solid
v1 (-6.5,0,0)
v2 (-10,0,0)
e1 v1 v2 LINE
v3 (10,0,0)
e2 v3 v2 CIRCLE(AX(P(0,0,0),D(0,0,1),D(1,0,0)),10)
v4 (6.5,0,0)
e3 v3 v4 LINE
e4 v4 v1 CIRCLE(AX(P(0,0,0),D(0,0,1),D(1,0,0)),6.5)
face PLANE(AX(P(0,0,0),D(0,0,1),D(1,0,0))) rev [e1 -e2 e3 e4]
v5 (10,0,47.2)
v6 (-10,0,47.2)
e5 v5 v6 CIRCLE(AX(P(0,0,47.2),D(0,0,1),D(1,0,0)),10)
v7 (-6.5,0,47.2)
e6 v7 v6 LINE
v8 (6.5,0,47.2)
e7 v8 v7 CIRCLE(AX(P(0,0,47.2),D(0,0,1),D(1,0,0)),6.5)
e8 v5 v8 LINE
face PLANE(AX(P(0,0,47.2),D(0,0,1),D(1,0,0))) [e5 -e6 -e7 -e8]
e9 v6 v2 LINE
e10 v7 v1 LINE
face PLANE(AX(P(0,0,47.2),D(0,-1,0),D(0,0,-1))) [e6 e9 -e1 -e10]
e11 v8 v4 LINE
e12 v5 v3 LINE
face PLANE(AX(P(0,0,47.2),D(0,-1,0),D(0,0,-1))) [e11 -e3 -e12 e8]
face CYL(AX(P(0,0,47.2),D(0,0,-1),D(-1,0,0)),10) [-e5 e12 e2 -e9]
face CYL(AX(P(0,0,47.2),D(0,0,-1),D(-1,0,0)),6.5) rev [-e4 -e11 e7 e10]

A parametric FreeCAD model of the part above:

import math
import FreeCAD as App
import Part
import Sketcher
from FreeCAD import Vector
Q = App.Units.Quantity

doc = App.newDocument("Part")
body = doc.addObject("PartDesign::Body", "Body")

sketch1 = body.newObject("Sketcher::SketchObject", "Sketch")
sketch1.AttachmentSupport = (doc.getObject("XY_Plane"), [""])
sketch1.MapMode = "FlatFace"
sketch1.addGeometry([
    Part.LineSegment(Vector(6.5, 0, 0), Vector(10, 0, 0)),
    Part.ArcOfCircle(Part.Circle(Vector(0, 0, 0), Vector(0, 0, 1), 10), math.radians(0), math.radians(180)),
    Part.LineSegment(Vector(-10, 0, 0), Vector(-6.5, 0, 0)),
    Part.ArcOfCircle(Part.Circle(Vector(0, 0, 0), Vector(0, 0, 1), 6.5), math.radians(0), math.radians(180)),
], False)
sketch1.addConstraint([
    Sketcher.Constraint("Coincident", 0, 2, 1, 1),
    Sketcher.Constraint("Coincident", 1, 2, 2, 1),
    Sketcher.Constraint("Coincident", 2, 2, 3, 2),
    Sketcher.Constraint("Coincident", 3, 1, 0, 1),
    Sketcher.Constraint("Horizontal", 0),
    Sketcher.Constraint("Horizontal", 2),
    Sketcher.Constraint("Coincident", 1, 3, -1, 1),
    Sketcher.Constraint("Coincident", 3, 3, -1, 1),
    Sketcher.Constraint("PointOnObject", 0, 2, -1),
    Sketcher.Constraint("PointOnObject", 1, 2, -1),
    Sketcher.Constraint("Radius", 1, Q("10 mm")),
    Sketcher.Constraint("Radius", 3, Q("6.5 mm")),
])
pad1 = body.newObject("PartDesign::Pad", "Pad")
pad1.Profile = sketch1
pad1.Length = 47.2

doc.recompute()
